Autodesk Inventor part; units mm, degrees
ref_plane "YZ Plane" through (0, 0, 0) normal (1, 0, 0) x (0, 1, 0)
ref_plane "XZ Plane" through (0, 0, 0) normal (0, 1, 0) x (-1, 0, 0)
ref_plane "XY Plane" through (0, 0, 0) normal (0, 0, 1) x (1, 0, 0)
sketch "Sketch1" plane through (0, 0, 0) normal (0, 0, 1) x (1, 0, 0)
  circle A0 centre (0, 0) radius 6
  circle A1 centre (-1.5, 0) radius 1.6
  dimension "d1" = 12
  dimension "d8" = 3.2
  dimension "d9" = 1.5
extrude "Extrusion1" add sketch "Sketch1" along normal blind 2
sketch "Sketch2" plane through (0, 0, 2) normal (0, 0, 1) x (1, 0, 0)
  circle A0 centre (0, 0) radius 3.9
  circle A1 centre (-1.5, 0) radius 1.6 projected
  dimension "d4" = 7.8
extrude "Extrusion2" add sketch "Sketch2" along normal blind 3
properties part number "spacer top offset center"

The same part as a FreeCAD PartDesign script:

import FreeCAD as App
import Part
import Sketcher
from FreeCAD import Vector

doc = App.newDocument("Part")
body = doc.addObject("PartDesign::Body", "Body")

sketch1 = body.newObject("Sketcher::SketchObject", "Sketch")
sketch1.AttachmentSupport = (doc.getObject("XY_Plane"), [""])
sketch1.MapMode = "FlatFace"
sketch1.addGeometry([
    Part.Circle(Vector(0, 0, 0), Vector(0, 0, 1), 6),
    Part.Circle(Vector(-1.5, 0, 0), Vector(0, 0, 1), 1.6),
], False)
sketch1.addConstraint([
    Sketcher.Constraint("Coincident", 0, 3, -1, 1),
    Sketcher.Constraint("PointOnObject", 1, 3, -1),
    Sketcher.Constraint("Diameter", 0, 12.0),
    Sketcher.Constraint("Diameter", 1, 3.2),
    Sketcher.Constraint("DistanceX", 1, 3, -1, 1, 1.5),
])
pad1 = body.newObject("PartDesign::Pad", "Pad")
pad1.Profile = sketch1
pad1.Length = 2

sketch2 = body.newObject("Sketcher::SketchObject", "Sketch001")
sketch2.AttachmentSupport = (doc.getObject("XY_Plane"), [""])
sketch2.MapMode = "FlatFace"
sketch2.AttachmentOffset = App.Placement(Vector(0, 0, 2), App.Rotation())
sketch2.addGeometry([
    Part.Circle(Vector(0, 0, 0), Vector(0, 0, 1), 3.9),
    Part.Circle(Vector(-1.5, 0, 0), Vector(0, 0, 1), 1.6),
], False)
sketch2.addConstraint([
    Sketcher.Constraint("Coincident", 0, 3, -1, 1),
    Sketcher.Constraint("PointOnObject", 1, 3, -1),
    Sketcher.Constraint("Diameter", 0, 7.8),
    Sketcher.Constraint("Diameter", 1, 3.2),
    Sketcher.Constraint("DistanceX", 1, 3, -1, 1, 1.5),
])
pad2 = body.newObject("PartDesign::Pad", "Pad001")
pad2.Profile = sketch2
pad2.Length = 3

doc.recompute()
